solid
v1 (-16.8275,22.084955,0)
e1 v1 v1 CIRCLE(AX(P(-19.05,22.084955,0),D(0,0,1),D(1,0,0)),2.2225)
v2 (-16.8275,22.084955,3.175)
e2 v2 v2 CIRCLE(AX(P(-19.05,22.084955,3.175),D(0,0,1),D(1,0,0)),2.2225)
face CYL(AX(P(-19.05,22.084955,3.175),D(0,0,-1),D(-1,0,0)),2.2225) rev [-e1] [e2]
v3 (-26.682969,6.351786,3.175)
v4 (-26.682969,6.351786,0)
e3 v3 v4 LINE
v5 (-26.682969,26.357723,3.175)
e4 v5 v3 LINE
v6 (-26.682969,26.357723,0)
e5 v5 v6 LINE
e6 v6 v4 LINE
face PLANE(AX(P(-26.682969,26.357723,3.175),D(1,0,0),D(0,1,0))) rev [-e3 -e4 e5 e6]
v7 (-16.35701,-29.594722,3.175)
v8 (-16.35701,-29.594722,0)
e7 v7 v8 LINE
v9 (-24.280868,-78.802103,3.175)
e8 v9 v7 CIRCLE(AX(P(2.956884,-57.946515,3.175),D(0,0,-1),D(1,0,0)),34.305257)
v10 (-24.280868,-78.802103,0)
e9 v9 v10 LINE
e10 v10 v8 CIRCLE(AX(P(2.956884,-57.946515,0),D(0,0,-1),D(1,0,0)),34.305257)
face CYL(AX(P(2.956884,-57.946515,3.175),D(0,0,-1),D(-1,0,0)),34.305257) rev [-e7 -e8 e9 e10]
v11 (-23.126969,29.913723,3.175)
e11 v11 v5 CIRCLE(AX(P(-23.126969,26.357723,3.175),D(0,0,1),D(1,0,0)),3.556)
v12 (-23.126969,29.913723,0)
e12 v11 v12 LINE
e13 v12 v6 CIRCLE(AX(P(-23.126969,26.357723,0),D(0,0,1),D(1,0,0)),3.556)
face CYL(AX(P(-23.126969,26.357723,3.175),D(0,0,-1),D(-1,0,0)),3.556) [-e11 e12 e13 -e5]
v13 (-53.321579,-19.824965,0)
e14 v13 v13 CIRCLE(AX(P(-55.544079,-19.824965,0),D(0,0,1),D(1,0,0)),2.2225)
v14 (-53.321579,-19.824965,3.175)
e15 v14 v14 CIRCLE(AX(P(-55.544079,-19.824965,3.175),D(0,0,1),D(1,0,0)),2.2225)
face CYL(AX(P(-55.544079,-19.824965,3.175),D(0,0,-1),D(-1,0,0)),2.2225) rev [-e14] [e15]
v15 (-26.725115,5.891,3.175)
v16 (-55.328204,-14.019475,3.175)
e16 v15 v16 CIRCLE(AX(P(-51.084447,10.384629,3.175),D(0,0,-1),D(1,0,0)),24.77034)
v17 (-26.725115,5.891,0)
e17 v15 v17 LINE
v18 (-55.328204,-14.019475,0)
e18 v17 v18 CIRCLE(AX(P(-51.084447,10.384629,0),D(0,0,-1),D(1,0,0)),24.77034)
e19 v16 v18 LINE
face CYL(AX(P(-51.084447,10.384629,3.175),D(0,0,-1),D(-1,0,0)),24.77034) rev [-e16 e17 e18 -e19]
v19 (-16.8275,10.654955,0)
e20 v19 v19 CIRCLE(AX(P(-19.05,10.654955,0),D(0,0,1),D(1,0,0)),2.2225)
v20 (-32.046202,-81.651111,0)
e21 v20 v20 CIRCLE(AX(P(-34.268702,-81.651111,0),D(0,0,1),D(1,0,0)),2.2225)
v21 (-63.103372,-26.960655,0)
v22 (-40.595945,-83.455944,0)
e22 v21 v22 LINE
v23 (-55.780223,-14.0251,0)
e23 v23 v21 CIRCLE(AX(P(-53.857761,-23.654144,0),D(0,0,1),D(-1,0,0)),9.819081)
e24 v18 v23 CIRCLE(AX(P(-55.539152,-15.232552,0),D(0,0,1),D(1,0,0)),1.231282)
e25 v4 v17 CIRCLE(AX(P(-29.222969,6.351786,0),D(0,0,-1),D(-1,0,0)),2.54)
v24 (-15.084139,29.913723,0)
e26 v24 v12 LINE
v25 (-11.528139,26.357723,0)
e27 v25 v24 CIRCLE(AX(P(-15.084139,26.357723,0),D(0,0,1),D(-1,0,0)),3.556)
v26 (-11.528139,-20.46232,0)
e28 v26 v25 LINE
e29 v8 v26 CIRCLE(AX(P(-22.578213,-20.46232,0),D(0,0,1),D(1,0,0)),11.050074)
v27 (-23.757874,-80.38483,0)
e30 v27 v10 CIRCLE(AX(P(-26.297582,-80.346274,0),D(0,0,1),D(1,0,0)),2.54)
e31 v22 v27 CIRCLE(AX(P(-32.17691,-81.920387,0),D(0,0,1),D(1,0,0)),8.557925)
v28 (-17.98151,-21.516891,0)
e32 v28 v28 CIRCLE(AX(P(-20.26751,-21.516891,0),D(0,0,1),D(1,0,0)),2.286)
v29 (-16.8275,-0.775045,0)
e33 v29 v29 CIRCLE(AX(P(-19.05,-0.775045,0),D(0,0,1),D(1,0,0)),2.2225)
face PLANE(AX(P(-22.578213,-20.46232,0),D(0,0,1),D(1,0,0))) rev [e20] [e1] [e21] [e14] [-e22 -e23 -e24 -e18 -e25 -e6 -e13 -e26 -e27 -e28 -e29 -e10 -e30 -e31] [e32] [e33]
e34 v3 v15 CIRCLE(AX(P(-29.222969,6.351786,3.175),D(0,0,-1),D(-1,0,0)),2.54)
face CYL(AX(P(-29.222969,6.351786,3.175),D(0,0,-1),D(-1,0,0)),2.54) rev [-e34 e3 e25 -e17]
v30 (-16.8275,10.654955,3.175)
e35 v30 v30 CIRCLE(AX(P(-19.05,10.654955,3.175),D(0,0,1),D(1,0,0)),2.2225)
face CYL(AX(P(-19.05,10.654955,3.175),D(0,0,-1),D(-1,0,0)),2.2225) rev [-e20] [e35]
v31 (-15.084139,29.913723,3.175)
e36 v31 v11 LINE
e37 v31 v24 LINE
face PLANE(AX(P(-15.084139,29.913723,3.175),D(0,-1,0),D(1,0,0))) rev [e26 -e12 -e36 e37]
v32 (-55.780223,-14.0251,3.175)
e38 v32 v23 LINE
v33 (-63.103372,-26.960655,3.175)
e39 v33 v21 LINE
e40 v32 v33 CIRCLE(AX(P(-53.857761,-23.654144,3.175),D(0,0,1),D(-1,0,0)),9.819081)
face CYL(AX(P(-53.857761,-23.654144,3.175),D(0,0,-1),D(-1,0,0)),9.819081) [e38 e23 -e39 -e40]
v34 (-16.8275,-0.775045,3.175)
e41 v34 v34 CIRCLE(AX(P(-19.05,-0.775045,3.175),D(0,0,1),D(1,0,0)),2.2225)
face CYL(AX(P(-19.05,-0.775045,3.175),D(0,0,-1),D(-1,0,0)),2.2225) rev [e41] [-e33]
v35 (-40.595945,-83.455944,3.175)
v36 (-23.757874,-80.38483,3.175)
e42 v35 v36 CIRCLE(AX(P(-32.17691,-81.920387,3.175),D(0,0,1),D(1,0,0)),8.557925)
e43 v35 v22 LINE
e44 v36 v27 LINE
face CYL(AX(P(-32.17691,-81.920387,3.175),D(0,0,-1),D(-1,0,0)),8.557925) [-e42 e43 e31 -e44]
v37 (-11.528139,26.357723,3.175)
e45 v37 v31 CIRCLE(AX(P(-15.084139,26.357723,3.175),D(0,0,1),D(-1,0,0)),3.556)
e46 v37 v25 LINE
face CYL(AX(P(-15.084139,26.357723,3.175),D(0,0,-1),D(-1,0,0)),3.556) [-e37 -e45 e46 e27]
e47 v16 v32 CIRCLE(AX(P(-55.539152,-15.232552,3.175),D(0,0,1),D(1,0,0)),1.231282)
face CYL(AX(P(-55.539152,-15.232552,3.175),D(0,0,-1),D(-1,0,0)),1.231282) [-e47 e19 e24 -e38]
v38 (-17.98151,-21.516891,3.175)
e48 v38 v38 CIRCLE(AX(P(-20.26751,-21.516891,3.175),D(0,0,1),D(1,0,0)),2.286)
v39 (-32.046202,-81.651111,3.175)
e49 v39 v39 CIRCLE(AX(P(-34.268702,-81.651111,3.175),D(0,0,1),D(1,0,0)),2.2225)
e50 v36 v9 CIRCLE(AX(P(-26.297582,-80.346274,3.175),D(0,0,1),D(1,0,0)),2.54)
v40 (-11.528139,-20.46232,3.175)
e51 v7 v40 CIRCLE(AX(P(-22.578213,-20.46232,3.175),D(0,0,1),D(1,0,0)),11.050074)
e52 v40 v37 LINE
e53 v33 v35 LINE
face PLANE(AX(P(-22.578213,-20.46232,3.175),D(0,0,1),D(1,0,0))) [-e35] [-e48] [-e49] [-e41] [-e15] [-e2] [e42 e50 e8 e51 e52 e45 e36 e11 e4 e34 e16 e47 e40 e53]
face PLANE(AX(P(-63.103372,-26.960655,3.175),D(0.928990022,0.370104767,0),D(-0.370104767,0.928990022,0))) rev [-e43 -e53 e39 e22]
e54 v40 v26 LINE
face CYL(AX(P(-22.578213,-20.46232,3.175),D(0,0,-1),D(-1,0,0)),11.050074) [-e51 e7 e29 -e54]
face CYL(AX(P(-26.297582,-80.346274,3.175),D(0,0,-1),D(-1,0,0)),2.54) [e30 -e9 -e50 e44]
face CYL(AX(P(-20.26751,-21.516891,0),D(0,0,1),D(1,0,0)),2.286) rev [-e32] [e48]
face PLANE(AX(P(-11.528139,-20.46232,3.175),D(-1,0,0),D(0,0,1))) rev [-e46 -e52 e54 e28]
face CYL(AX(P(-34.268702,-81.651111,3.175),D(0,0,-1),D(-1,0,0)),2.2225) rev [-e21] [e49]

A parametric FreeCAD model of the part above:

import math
import FreeCAD as App
import Part
import Sketcher
from FreeCAD import Vector
Q = App.Units.Quantity

doc = App.newDocument("Part")
body = doc.addObject("PartDesign::Body", "Body")

# Sketch on XY plane
sketch1 = body.newObject("Sketcher::SketchObject", "Sketch")
sketch1.AttachmentSupport = (doc.getObject("XY_Plane"), [""])
sketch1.MapMode = "FlatFace"
sketch1.addGeometry([
    Part.LineSegment(Vector(-26.682969, 26.357723, 0), Vector(-26.682969, 6.351786, 0)),  # 0
    Part.ArcOfCircle(Part.Circle(Vector(-29.222969, 6.351786, 0), Vector(0, 0, 1), 2.54), math.radians(-10.451996), math.radians(0)),  # 1
    Part.ArcOfCircle(Part.Circle(Vector(-51.084447, 10.384629, 0), Vector(0, 0, 1), 24.77034), math.radians(-99.864816), math.radians(-10.451996)),  # 2
    Part.ArcOfCircle(Part.Circle(Vector(-55.539152, -15.232552, 0), Vector(0, 0, 1), 1.231282), math.radians(80.135184), math.radians(101.290786)),  # 3
    Part.ArcOfCircle(Part.Circle(Vector(-53.857761, -23.654144, 0), Vector(0, 0, 1), 9.819081), math.radians(101.290786), math.radians(199.678587)),  # 4
    Part.LineSegment(Vector(-63.103372, -26.960655, 0), Vector(-40.595945, -83.455944, 0)),  # 5
    Part.ArcOfCircle(Part.Circle(Vector(-32.17691, -81.920387, 0), Vector(0, 0, 1), 8.557925), math.radians(-169.663381), math.radians(10.336619)),  # 6
    Part.ArcOfCircle(Part.Circle(Vector(-26.297582, -80.346274, 0), Vector(0, 0, 1), 2.54), math.radians(-0.86974), math.radians(37.440806)),  # 7
    Part.ArcOfCircle(Part.Circle(Vector(2.956884, -57.946515, 0), Vector(0, 0, 1), 34.305257), math.radians(124.263592), math.radians(217.440806)),  # 8
    Part.ArcOfCircle(Part.Circle(Vector(-22.578213, -20.46232, 0), Vector(0, 0, 1), 11.050074), math.radians(-55.736408), math.radians(0)),  # 9
    Part.LineSegment(Vector(-11.528139, -20.46232, 0), Vector(-11.528139, 26.357723, 0)),  # 10
    Part.ArcOfCircle(Part.Circle(Vector(-15.084139, 26.357723, 0), Vector(0, 0, 1), 3.556), math.radians(0), math.radians(90)),  # 11
    Part.LineSegment(Vector(-15.084139, 29.913723, 0), Vector(-23.126969, 29.913723, 0)),  # 12
    Part.ArcOfCircle(Part.Circle(Vector(-23.126969, 26.357723, 0), Vector(0, 0, 1), 3.556), math.radians(90), math.radians(180)),  # 13
    Part.Circle(Vector(-34.268702, -81.651111, 0), Vector(0, 0, 1), 2.2225),  # 14
    Part.Circle(Vector(-55.544079, -19.824965, 0), Vector(0, 0, 1), 2.2225),  # 15
    Part.Circle(Vector(-19.05, -0.775045, 0), Vector(0, 0, 1), 2.2225),  # 16
    Part.Circle(Vector(-19.05, 10.654955, 0), Vector(0, 0, 1), 2.2225),  # 17
    Part.Circle(Vector(-19.05, 22.084955, 0), Vector(0, 0, 1), 2.2225),  # 18
], False)
sketch1.addConstraint([
    Sketcher.Constraint("Tangent", 0, 2, 1, 2),
    Sketcher.Constraint("Tangent", 1, 1, 2, 2),
    Sketcher.Constraint("Tangent", 2, 1, 3, 1),
    Sketcher.Constraint("Tangent", 3, 2, 4, 1),
    Sketcher.Constraint("Coincident", 4, 2, 5, 1),
    Sketcher.Constraint("Coincident", 5, 2, 6, 1),
    Sketcher.Constraint("Coincident", 6, 2, 7, 1),
    Sketcher.Constraint("Tangent", 7, 2, 8, 2),
    Sketcher.Constraint("Tangent", 8, 1, 9, 1),
    Sketcher.Constraint("Tangent", 9, 2, 10, 1),
    Sketcher.Constraint("Tangent", 10, 2, 11, 1),
    Sketcher.Constraint("Tangent", 11, 2, 12, 1),
    Sketcher.Constraint("Tangent", 12, 2, 13, 1),
    Sketcher.Constraint("Tangent", 13, 2, 0, 1),
    Sketcher.Constraint("Vertical", 0),
    Sketcher.Constraint("Vertical", 10),
    Sketcher.Constraint("Horizontal", 12),
    Sketcher.Constraint("Equal", 1, 7),
    Sketcher.Constraint("Equal", 11, 13),
    Sketcher.Constraint("Equal", 14, 15),
    Sketcher.Constraint("Equal", 15, 16),
    Sketcher.Constraint("Equal", 16, 17),
    Sketcher.Constraint("Equal", 17, 18),
    Sketcher.Constraint("Vertical", 16, 3, 17, 3),
    Sketcher.Constraint("Vertical", 17, 3, 18, 3),
    Sketcher.Constraint("Radius", 1, Q("0.1 in")),
    Sketcher.Constraint("Radius", 11, Q("0.14 in")),
    Sketcher.Constraint("Diameter", 14, Q("0.175 in")),
    Sketcher.Constraint("DistanceY", 16, 3, 18, 3, Q("0.9 in")),
    Sketcher.Constraint("DistanceX", 16, 3, -1, 1, Q("0.75 in")),
    Sketcher.Constraint("DistanceY", 16, 3, 17, 3, Q("0.45 in")),
    Sketcher.Constraint("Radius", 2, Q("24.77034 mm")),
    Sketcher.Constraint("Radius", 3, Q("1.231282 mm")),
    Sketcher.Constraint("Radius", 4, Q("9.819081 mm")),
    Sketcher.Constraint("Radius", 6, Q("8.557925 mm")),
    Sketcher.Constraint("Radius", 8, Q("34.305257 mm")),
    Sketcher.Constraint("Radius", 9, Q("11.050074 mm")),
    Sketcher.Constraint("DistanceX", 12, 2, 12, 1, Q("8.04283 mm")),
    Sketcher.Constraint("DistanceY", -1, 1, 1, 1, Q("5.891 mm")),
    Sketcher.Constraint("DistanceY", 3, 2, -1, 1, Q("14.0251 mm")),
    Sketcher.Constraint("DistanceY", 8, 3, 1, 3, Q("64.298301 mm")),
    Sketcher.Constraint("DistanceY", 8, 1, 9, 3, Q("9.132402 mm")),
    Sketcher.Constraint("DistanceY", 0, 2, 0, 1, Q("20.005937 mm")),
    Sketcher.Constraint("DistanceX", 1, 3, -1, 1, Q("29.222969 mm")),
    Sketcher.Constraint("DistanceY", -1, 1, 2, 3, Q("10.384629 mm")),
    Sketcher.Constraint("DistanceX", 4, 3, -1, 1, Q("53.857761 mm")),
    Sketcher.Constraint("DistanceX", 6, 3, -1, 1, Q("32.17691 mm")),
    Sketcher.Constraint("DistanceX", 7, 3, -1, 1, Q("26.297582 mm")),
    Sketcher.Constraint("DistanceY", 14, 3, -1, 1, Q("81.651111 mm")),
    Sketcher.Constraint("DistanceX", 15, 3, -1, 1, Q("55.544079 mm")),
    Sketcher.Constraint("DistanceY", 6, 2, -1, 1, Q("80.38483 mm")),
    Sketcher.Constraint("DistanceX", 14, 3, 7, 3, Q("7.97112 mm")),
    Sketcher.Constraint("DistanceY", 4, 3, 15, 3, Q("3.829179 mm")),
    Sketcher.Constraint("DistanceY", 16, 3, 1, 3, Q("7.126831 mm")),
    Sketcher.Constraint("DistanceX", 4, 2, 4, 3, Q("9.245612 mm")),
    Sketcher.Constraint("DistanceY", 5, 2, 7, 3, Q("3.10967 mm")),
])
pad1 = body.newObject("PartDesign::Pad", "Pad")
pad1.Profile = sketch1
pad1.Length = Q("0.125 in")

# Sketch on XY plane
sketch2 = body.newObject("Sketcher::SketchObject", "Sketch001")
sketch2.AttachmentSupport = (doc.getObject("XY_Plane"), [""])
sketch2.MapMode = "FlatFace"
sketch2.AttachmentOffset = App.Placement(Vector(0, 0, 0.125 * 25.4), App.Rotation())
sketch2.addGeometry(Part.Circle(Vector(-20.26751, -21.516891, 0), Vector(0, 0, 1), 2.286), False)
sketch2.addConstraint([
    Sketcher.Constraint("Diameter", 0, Q("0.18 in")),
    Sketcher.Constraint("DistanceX", 0, 3, -1, 1, Q("20.26751 mm")),
    Sketcher.Constraint("DistanceY", 0, 3, -1, 1, Q("21.516891 mm")),
])
pocket1 = body.newObject("PartDesign::Pocket", "Pocket")
pocket1.Profile = sketch2
pocket1.Type = "ThroughAll"

doc.recompute()
